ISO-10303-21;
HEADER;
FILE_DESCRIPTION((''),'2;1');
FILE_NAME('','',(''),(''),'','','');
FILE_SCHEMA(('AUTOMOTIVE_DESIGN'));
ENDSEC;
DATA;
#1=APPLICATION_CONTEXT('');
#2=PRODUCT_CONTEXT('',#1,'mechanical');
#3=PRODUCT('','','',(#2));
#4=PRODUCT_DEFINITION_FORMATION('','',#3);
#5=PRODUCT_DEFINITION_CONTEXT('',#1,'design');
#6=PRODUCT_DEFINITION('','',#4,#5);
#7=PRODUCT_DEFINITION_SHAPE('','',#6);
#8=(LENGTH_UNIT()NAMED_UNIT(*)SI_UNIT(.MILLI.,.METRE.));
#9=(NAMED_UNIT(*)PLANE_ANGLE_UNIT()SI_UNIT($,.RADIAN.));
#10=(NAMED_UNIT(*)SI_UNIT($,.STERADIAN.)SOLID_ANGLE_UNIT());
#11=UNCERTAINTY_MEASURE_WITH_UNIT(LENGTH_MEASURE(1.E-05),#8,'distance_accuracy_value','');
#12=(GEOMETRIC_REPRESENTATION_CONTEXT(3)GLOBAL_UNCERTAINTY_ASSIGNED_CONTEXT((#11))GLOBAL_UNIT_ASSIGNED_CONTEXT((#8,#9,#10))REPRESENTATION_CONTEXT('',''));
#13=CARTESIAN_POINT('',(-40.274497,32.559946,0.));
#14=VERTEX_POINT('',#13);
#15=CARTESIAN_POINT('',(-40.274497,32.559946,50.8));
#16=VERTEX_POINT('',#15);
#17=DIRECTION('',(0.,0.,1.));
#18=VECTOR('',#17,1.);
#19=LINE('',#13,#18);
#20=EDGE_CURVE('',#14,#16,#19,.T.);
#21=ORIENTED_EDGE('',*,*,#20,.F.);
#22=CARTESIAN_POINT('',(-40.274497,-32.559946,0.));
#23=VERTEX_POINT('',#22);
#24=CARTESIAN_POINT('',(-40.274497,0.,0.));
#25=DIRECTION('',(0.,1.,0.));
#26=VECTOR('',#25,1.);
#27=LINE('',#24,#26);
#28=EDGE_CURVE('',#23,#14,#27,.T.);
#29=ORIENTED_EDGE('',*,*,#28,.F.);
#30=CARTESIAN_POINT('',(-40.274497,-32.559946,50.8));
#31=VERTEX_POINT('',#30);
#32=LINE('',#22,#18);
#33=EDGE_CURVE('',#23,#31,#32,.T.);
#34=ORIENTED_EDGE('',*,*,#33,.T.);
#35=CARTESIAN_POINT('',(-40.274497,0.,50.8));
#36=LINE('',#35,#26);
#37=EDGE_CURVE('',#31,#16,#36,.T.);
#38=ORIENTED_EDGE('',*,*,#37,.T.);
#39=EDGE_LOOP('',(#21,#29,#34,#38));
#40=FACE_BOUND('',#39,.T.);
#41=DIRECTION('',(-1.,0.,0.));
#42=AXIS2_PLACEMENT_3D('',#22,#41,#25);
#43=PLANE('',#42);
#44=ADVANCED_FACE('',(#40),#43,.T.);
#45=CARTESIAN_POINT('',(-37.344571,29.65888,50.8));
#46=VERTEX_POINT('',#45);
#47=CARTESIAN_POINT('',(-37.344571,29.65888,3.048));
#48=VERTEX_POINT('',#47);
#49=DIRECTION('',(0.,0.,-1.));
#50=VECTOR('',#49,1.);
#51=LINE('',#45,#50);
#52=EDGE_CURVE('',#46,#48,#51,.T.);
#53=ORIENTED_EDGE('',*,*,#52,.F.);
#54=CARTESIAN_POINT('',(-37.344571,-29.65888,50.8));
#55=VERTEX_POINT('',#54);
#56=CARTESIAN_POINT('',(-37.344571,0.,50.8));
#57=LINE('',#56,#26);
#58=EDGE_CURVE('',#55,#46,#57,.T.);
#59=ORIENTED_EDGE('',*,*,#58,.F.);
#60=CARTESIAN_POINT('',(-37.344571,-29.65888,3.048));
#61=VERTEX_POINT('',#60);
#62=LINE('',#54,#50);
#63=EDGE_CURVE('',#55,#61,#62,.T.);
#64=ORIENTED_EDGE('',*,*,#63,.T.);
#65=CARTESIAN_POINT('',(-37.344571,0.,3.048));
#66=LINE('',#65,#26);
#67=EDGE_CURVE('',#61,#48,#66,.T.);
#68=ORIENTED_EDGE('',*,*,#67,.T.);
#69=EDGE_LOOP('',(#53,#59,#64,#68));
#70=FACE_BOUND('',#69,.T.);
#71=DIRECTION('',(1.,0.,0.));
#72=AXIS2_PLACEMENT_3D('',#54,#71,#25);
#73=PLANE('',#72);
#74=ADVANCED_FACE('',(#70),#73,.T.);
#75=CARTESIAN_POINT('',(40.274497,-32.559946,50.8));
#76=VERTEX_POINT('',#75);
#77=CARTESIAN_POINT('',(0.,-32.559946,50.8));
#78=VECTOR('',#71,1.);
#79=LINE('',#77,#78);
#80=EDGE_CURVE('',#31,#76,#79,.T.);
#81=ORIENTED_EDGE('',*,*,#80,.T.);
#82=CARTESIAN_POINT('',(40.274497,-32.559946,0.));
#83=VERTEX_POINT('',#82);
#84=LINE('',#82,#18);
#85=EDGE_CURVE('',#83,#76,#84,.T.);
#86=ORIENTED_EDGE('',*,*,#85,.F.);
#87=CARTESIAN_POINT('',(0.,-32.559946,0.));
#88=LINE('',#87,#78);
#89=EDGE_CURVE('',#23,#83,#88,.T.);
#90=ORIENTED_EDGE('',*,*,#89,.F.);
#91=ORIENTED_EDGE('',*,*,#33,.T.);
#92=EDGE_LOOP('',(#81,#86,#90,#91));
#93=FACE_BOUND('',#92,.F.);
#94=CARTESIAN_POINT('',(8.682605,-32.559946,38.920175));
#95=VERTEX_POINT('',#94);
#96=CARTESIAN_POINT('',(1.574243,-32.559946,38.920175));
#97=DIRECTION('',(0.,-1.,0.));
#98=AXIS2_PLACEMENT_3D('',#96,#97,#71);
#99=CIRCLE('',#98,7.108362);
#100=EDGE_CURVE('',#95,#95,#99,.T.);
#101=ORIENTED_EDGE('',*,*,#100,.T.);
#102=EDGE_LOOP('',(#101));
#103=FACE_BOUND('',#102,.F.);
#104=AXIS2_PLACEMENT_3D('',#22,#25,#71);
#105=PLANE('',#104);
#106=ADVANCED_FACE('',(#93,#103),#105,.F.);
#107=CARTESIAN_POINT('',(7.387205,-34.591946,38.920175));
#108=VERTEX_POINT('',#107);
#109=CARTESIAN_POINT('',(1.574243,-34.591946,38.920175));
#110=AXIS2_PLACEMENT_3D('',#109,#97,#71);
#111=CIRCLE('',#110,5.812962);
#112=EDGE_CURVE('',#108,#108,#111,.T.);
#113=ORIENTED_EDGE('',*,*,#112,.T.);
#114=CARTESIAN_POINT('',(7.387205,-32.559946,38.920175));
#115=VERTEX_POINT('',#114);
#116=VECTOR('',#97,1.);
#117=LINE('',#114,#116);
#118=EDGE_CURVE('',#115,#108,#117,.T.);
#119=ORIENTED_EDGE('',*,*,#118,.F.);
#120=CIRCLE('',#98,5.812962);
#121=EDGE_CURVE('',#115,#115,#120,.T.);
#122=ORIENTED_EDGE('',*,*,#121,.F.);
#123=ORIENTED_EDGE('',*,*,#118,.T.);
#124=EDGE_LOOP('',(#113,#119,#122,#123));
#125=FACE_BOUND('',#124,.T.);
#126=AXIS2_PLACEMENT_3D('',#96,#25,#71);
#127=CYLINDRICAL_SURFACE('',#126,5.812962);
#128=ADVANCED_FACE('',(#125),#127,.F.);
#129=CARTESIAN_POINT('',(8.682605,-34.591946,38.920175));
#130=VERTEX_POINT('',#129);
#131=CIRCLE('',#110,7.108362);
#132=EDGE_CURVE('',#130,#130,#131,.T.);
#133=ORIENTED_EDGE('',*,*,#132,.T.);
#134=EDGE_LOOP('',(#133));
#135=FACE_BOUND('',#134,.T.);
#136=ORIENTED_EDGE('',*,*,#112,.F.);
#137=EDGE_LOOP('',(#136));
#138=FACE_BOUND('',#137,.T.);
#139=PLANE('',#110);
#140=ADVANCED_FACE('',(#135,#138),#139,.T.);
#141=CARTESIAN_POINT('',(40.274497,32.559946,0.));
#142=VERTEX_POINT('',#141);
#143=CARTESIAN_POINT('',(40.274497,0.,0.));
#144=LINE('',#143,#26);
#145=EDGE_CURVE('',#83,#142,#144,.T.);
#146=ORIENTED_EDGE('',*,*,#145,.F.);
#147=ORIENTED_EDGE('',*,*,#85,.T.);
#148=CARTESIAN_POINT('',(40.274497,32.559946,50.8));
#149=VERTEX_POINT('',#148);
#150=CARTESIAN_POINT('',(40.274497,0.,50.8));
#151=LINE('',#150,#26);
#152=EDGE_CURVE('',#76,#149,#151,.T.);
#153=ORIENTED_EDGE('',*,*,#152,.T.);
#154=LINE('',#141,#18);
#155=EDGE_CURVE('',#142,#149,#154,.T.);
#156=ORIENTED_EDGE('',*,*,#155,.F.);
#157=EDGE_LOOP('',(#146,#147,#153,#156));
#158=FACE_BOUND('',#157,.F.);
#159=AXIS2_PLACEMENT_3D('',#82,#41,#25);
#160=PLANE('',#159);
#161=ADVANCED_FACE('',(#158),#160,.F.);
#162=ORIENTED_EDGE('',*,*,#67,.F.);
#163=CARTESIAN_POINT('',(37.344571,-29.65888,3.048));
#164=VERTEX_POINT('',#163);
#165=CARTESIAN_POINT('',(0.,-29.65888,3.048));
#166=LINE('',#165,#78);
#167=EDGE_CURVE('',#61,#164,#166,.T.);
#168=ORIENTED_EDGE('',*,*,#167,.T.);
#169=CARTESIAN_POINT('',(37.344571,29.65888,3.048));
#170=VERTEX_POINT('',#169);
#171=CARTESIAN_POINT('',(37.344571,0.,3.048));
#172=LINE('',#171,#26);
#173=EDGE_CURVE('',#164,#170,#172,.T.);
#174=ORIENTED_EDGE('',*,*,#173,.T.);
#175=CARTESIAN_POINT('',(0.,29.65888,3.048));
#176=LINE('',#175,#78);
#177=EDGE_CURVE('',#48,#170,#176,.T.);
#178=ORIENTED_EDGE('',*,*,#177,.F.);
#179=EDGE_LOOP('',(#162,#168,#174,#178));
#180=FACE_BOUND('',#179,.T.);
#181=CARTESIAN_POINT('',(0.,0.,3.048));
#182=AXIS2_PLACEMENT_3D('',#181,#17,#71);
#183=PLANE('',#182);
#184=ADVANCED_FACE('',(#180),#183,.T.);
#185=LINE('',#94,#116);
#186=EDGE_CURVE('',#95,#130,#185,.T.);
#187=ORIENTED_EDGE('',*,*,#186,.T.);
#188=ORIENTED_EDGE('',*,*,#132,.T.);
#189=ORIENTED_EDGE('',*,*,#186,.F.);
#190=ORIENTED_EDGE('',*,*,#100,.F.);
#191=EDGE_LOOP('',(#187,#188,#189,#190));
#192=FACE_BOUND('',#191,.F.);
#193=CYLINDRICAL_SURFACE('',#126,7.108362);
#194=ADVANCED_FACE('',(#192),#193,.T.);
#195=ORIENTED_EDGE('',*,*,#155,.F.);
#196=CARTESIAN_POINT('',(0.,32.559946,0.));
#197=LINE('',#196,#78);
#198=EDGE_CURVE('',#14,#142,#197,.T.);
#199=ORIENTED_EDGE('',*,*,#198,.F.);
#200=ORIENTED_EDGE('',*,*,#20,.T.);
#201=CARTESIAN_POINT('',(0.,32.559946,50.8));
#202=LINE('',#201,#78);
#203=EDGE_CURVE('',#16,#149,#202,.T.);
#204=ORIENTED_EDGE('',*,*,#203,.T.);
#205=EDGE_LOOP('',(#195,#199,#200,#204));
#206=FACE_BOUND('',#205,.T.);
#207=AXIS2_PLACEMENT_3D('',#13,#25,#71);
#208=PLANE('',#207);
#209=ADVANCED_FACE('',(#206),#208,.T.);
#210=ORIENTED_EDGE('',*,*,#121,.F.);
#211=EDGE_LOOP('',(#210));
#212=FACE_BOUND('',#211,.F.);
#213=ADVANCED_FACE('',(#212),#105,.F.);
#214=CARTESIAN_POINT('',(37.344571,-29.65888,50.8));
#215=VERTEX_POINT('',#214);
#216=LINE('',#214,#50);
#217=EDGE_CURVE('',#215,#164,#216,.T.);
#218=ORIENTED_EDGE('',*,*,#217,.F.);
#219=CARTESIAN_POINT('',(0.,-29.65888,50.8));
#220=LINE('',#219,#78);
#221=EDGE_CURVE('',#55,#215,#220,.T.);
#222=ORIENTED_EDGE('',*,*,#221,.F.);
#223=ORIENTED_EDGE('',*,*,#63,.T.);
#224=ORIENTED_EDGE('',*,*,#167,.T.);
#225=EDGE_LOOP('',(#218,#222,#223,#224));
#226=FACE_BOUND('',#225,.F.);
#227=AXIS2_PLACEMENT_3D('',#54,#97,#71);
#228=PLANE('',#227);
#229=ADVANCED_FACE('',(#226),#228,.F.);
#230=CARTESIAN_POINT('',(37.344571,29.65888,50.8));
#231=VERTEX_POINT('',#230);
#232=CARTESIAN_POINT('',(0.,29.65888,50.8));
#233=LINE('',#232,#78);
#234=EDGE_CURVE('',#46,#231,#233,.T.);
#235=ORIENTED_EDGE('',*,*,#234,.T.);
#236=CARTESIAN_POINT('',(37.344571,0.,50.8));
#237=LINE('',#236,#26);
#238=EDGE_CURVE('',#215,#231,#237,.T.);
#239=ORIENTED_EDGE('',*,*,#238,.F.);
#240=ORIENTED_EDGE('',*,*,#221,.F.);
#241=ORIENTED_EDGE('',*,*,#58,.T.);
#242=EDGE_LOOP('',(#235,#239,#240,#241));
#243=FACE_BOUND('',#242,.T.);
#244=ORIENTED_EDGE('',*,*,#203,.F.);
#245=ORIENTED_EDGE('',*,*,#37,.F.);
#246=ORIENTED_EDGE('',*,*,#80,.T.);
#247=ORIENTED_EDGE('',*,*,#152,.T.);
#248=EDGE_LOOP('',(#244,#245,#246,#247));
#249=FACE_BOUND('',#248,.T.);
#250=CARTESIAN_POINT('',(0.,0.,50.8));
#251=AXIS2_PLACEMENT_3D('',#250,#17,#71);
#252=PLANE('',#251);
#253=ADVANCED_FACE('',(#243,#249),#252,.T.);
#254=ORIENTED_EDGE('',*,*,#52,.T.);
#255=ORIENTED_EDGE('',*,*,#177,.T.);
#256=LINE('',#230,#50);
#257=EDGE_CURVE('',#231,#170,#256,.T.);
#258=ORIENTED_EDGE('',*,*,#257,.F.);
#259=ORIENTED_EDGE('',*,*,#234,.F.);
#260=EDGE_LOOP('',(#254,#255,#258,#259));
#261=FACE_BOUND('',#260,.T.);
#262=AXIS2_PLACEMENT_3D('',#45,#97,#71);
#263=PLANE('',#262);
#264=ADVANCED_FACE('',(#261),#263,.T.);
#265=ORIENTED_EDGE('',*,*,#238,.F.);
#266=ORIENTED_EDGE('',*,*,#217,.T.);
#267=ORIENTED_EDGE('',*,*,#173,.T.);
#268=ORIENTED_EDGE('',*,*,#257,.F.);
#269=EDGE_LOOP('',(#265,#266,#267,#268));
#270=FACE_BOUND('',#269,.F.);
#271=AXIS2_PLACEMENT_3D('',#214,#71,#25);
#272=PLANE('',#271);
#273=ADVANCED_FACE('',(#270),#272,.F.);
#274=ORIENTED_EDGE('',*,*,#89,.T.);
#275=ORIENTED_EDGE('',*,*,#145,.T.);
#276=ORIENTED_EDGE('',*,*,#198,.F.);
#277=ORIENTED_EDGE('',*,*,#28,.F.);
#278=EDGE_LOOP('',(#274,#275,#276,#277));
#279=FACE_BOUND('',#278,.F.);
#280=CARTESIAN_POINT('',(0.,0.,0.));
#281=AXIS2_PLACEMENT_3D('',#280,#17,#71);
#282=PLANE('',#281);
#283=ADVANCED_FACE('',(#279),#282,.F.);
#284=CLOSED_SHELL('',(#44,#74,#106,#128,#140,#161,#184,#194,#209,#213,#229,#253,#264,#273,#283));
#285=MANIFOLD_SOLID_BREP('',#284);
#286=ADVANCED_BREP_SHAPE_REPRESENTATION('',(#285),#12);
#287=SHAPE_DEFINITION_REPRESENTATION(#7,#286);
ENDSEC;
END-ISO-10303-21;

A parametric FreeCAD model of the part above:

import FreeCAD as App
import Part
import Sketcher
from FreeCAD import Vector
Q = App.Units.Quantity

doc = App.newDocument("Part")
body = doc.addObject("PartDesign::Body", "Body")

sketch1 = body.newObject("Sketcher::SketchObject", "Sketch")
sketch1.AttachmentSupport = (doc.getObject("XY_Plane"), [""])
sketch1.MapMode = "FlatFace"
sketch1.addGeometry([
    Part.LineSegment(Vector(-40, 33, 0), Vector(-40, -33, 0)),
    Part.LineSegment(Vector(-40, -33, 0), Vector(40, -33, 0)),
    Part.LineSegment(Vector(40, -33, 0), Vector(40, 33, 0)),
    Part.LineSegment(Vector(40, 33, 0), Vector(-40, 33, 0)),
], False)
sketch1.addConstraint([
    Sketcher.Constraint("Coincident", 0, 2, 1, 1),
    Sketcher.Constraint("Coincident", 1, 2, 2, 1),
    Sketcher.Constraint("Coincident", 2, 2, 3, 1),
    Sketcher.Constraint("Coincident", 3, 2, 0, 1),
    Sketcher.Constraint("Vertical", 0),
    Sketcher.Constraint("Horizontal", 1),
    Sketcher.Constraint("Vertical", 2),
    Sketcher.Constraint("Horizontal", 3),
    Sketcher.Constraint("Symmetric", 0, 2, 2, 2, -1, 1),
    Sketcher.Constraint("DistanceY", 0, 2, 0, 1, 65.119892),
    Sketcher.Constraint("DistanceX", 1, 1, 1, 2, 80.548994),
])
pad1 = body.newObject("PartDesign::Pad", "Pad")
pad1.Profile = sketch1
pad1.Length = Q("2 in")

sketch2 = body.newObject("Sketcher::SketchObject", "Sketch001")
sketch2.AttachmentSupport = (doc.getObject("XY_Plane"), [""])
sketch2.MapMode = "FlatFace"
sketch2.AttachmentOffset = App.Placement(Vector(0, 0, 2 * 25.4), App.Rotation())
sketch2.addGeometry([
    Part.LineSegment(Vector(-37, 30, 0), Vector(-37, -30, 0)),
    Part.LineSegment(Vector(-37, -30, 0), Vector(37, -30, 0)),
    Part.LineSegment(Vector(37, -30, 0), Vector(37, 30, 0)),
    Part.LineSegment(Vector(37, 30, 0), Vector(-37, 30, 0)),
], False)
sketch2.addConstraint([
    Sketcher.Constraint("Coincident", 0, 2, 1, 1),
    Sketcher.Constraint("Coincident", 1, 2, 2, 1),
    Sketcher.Constraint("Coincident", 2, 2, 3, 1),
    Sketcher.Constraint("Coincident", 3, 2, 0, 1),
    Sketcher.Constraint("Vertical", 0),
    Sketcher.Constraint("Horizontal", 1),
    Sketcher.Constraint("Vertical", 2),
    Sketcher.Constraint("Horizontal", 3),
    Sketcher.Constraint("Symmetric", 0, 2, 2, 2, -1, 1),
    Sketcher.Constraint("DistanceY", 0, 2, 0, 1, 59.31776),
    Sketcher.Constraint("DistanceX", 1, 1, 1, 2, 74.689142),
])
pocket1 = body.newObject("PartDesign::Pocket", "Pocket")
pocket1.Profile = sketch2
pocket1.Length = Q("1.88 in")

sketch3 = body.newObject("Sketcher::SketchObject", "Sketch002")
sketch3.AttachmentSupport = (doc.getObject("XZ_Plane"), [""])
sketch3.MapMode = "FlatFace"
sketch3.AttachmentOffset = App.Placement(Vector(0, 0, 32.559946), App.Rotation())
sketch3.addGeometry([
    Part.Circle(Vector(2, 39, 0), Vector(0, 0, 1), 7),
    Part.Circle(Vector(2, 39, 0), Vector(0, 0, 1), 6),
], False)
sketch3.addConstraint([
    Sketcher.Constraint("Coincident", 1, 3, 0, 3),
    Sketcher.Constraint("Diameter", 0, 14.216724),
    Sketcher.Constraint("Diameter", 1, 11.625924),
    Sketcher.Constraint("DistanceX", -1, 1, 0, 3, 1.574243),
    Sketcher.Constraint("DistanceY", -1, 1, 0, 3, 38.920175),
])
pad2 = body.newObject("PartDesign::Pad", "Pad001")
pad2.Profile = sketch3
pad2.Length = Q("0.08 in")

doc.recompute()
